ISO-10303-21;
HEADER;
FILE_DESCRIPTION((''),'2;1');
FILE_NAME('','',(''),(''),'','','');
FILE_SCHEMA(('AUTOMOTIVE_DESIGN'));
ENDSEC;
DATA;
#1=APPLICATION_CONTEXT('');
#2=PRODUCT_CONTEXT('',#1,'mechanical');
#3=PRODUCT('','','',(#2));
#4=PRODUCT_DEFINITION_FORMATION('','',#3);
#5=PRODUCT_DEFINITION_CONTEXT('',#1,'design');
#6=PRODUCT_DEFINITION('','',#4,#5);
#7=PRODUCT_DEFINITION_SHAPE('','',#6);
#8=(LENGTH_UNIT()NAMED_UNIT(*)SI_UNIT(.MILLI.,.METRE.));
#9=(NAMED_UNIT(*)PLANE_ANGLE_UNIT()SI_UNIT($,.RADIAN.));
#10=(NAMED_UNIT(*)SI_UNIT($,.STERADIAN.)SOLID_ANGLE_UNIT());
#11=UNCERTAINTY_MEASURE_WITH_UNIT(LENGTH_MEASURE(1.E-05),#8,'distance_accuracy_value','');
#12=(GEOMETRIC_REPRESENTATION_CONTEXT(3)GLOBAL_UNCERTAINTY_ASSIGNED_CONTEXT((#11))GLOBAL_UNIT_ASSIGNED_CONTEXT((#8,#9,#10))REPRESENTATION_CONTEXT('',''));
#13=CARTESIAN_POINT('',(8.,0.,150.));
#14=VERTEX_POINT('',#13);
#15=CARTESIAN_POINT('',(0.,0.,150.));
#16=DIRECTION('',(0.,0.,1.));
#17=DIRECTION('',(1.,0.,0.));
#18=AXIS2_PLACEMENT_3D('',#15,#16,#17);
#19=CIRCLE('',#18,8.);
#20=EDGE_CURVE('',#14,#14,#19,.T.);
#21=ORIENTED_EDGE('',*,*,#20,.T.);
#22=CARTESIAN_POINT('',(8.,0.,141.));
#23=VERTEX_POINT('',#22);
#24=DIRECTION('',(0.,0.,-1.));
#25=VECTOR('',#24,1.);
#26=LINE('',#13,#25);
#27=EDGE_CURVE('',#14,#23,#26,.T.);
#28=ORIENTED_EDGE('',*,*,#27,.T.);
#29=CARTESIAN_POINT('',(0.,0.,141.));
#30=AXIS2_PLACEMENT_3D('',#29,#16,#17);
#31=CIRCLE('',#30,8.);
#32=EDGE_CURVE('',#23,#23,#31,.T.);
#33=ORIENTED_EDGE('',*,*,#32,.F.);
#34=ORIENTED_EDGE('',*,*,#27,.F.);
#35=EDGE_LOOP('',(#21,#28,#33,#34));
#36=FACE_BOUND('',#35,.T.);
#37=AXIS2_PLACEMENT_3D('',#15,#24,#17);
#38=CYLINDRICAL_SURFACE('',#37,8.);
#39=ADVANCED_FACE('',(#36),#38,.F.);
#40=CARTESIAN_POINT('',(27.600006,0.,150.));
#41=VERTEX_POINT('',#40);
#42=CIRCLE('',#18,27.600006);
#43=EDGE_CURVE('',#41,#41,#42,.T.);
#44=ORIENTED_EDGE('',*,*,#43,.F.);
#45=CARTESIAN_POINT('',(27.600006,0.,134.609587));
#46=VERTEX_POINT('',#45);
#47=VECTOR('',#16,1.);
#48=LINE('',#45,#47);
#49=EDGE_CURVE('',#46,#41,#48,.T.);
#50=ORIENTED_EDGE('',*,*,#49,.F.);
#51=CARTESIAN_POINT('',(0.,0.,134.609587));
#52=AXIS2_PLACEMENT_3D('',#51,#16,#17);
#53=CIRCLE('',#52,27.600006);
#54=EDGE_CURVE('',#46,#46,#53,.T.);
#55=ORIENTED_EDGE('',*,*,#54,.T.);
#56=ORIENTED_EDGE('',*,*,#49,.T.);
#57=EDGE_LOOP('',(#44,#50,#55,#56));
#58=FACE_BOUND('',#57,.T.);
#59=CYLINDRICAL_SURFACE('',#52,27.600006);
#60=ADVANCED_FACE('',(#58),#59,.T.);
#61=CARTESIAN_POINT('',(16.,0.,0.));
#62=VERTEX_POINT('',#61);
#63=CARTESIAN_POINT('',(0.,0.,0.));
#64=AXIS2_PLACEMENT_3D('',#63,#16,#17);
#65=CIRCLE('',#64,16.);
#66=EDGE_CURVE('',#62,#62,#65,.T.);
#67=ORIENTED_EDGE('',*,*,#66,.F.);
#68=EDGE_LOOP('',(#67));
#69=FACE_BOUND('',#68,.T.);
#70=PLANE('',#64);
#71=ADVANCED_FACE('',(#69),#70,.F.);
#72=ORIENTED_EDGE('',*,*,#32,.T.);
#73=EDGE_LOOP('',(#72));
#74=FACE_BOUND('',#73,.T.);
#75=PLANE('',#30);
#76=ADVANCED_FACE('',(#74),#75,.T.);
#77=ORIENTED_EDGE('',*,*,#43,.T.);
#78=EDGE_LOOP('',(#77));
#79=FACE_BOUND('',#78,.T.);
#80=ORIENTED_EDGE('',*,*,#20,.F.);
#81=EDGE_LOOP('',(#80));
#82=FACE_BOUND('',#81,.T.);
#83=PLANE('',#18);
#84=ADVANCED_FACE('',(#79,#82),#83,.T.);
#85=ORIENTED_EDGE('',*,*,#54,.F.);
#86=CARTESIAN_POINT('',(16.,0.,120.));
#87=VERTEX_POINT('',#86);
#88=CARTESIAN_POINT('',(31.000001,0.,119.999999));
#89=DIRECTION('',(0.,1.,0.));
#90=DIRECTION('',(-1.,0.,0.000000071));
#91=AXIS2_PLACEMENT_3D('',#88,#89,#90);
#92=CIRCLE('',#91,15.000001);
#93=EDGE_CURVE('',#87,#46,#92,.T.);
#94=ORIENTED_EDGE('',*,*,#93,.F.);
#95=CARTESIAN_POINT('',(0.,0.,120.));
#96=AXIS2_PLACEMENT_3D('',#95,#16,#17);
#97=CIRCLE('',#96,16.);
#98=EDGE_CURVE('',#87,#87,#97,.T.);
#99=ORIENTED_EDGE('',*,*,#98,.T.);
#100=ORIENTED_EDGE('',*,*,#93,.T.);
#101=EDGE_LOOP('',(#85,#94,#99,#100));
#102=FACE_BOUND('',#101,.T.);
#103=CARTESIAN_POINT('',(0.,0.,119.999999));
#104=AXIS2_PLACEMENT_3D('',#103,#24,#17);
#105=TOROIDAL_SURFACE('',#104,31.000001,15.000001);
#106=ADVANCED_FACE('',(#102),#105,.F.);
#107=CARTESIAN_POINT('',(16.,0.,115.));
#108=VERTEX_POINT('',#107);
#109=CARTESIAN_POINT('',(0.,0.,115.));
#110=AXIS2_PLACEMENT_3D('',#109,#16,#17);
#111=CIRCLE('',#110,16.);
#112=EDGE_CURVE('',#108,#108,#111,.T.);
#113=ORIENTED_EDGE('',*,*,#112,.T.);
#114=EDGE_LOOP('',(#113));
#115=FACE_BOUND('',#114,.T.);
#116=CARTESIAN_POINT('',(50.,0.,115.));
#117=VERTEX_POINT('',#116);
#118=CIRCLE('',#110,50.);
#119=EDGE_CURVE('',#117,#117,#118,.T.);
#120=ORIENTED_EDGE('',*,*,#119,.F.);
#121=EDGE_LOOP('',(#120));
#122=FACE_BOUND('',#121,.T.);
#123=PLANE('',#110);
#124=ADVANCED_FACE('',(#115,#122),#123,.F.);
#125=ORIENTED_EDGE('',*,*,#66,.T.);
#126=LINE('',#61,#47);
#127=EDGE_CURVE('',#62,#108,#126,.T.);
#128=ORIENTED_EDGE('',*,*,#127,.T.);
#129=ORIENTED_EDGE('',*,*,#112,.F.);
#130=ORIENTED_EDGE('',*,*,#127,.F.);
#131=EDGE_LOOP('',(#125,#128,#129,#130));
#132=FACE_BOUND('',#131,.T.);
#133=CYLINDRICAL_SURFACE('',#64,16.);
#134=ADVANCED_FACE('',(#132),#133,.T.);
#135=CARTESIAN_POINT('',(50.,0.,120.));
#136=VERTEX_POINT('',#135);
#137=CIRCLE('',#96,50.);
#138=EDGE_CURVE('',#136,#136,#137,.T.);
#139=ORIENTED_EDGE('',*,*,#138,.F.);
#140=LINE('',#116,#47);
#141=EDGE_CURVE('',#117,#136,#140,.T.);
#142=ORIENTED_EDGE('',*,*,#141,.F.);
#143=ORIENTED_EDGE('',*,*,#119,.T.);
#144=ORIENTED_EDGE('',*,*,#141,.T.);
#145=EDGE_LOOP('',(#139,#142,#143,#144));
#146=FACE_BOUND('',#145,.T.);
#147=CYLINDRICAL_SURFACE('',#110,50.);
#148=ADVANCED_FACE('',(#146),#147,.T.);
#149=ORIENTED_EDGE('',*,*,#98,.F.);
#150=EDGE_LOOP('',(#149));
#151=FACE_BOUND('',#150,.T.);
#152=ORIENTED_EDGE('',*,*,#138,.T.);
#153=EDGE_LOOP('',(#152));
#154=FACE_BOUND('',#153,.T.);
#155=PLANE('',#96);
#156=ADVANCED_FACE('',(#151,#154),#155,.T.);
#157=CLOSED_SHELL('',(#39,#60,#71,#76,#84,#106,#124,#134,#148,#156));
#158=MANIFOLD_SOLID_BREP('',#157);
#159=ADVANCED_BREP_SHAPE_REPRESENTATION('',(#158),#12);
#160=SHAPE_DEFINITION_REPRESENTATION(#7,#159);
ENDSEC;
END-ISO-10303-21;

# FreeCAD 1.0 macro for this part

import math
import FreeCAD as App
import Part
import Sketcher
from FreeCAD import Vector

doc = App.newDocument("Part")
body = doc.addObject("PartDesign::Body", "Body")

# Sketch on XZ plane
sketch1 = doc.addObject("Sketcher::SketchObject", "Sketch")
body.addObject(sketch1)
sketch1.AttachmentSupport = (doc.XZ_Plane, [""])
sketch1.MapMode = "FlatFace"
sketch1.addGeometry(Part.LineSegment(Vector(0, 141, 0), Vector(0, 0, 0)), False)
sketch1.addGeometry(Part.LineSegment(Vector(0, 0, 0), Vector(16, 0, 0)), False)
sketch1.addGeometry(Part.LineSegment(Vector(16, 0, 0), Vector(16, 115, 0)), False)
sketch1.addGeometry(Part.LineSegment(Vector(16, 115, 0), Vector(50, 115, 0)), False)
sketch1.addGeometry(Part.LineSegment(Vector(50, 115, 0), Vector(50, 120, 0)), False)
sketch1.addGeometry(Part.LineSegment(Vector(50, 120, 0), Vector(16, 120, 0)), False)
sketch1.addGeometry(Part.ArcOfCircle(Part.Circle(Vector(31.000001, 119.999999, 0), Vector(0, 0, 1), 15.000001), math.radians(103.100883), math.radians(179.999996)), False)
sketch1.addGeometry(Part.LineSegment(Vector(27.600006, 134.609587, 0), Vector(27.600006, 150, 0)), False)
sketch1.addGeometry(Part.LineSegment(Vector(27.600006, 150, 0), Vector(8, 150, 0)), False)
sketch1.addGeometry(Part.LineSegment(Vector(8, 150, 0), Vector(8, 141, 0)), False)
sketch1.addGeometry(Part.LineSegment(Vector(8, 141, 0), Vector(0, 141, 0)), False)
sketch1.addConstraint(Sketcher.Constraint("Coincident", 0, 2, 1, 1))
sketch1.addConstraint(Sketcher.Constraint("Coincident", 1, 2, 2, 1))
sketch1.addConstraint(Sketcher.Constraint("Coincident", 2, 2, 3, 1))
sketch1.addConstraint(Sketcher.Constraint("Coincident", 3, 2, 4, 1))
sketch1.addConstraint(Sketcher.Constraint("Coincident", 4, 2, 5, 1))
sketch1.addConstraint(Sketcher.Constraint("Coincident", 5, 2, 6, 2))
sketch1.addConstraint(Sketcher.Constraint("Coincident", 6, 1, 7, 1))
sketch1.addConstraint(Sketcher.Constraint("Coincident", 7, 2, 8, 1))
sketch1.addConstraint(Sketcher.Constraint("Coincident", 8, 2, 9, 1))
sketch1.addConstraint(Sketcher.Constraint("Coincident", 9, 2, 10, 1))
sketch1.addConstraint(Sketcher.Constraint("Coincident", 10, 2, 0, 1))
sketch1.addConstraint(Sketcher.Constraint("Vertical", 0))
sketch1.addConstraint(Sketcher.Constraint("Horizontal", 1))
sketch1.addConstraint(Sketcher.Constraint("Vertical", 2))
sketch1.addConstraint(Sketcher.Constraint("Horizontal", 3))
sketch1.addConstraint(Sketcher.Constraint("Vertical", 4))
sketch1.addConstraint(Sketcher.Constraint("Horizontal", 5))
sketch1.addConstraint(Sketcher.Constraint("Vertical", 7))
sketch1.addConstraint(Sketcher.Constraint("Horizontal", 8))
sketch1.addConstraint(Sketcher.Constraint("Vertical", 9))
sketch1.addConstraint(Sketcher.Constraint("Horizontal", 10))
sketch1.addConstraint(Sketcher.Constraint("Coincident", 0, 2, -1, 1))
sketch1.addConstraint(Sketcher.Constraint("Horizontal", 6, 3, 4, 2))
sketch1.addConstraint(Sketcher.Constraint("Vertical", 2, 2, 5, 2))
sketch1.addConstraint(Sketcher.Constraint("Radius", 6, 15.000001))
sketch1.addConstraint(Sketcher.Constraint("DistanceX", 1, 1, 1, 2, 16.0))
sketch1.addConstraint(Sketcher.Constraint("DistanceX", 3, 1, 3, 2, 34.0))
sketch1.addConstraint(Sketcher.Constraint("DistanceX", 10, 2, 10, 1, 8.0))
sketch1.addConstraint(Sketcher.Constraint("DistanceY", 0, 2, 0, 1, 141.0))
sketch1.addConstraint(Sketcher.Constraint("DistanceY", 2, 1, 2, 2, 115.0))
sketch1.addConstraint(Sketcher.Constraint("DistanceY", 4, 1, 4, 2, 5.0))
sketch1.addConstraint(Sketcher.Constraint("DistanceY", 9, 2, 9, 1, 9.0))
sketch1.addConstraint(Sketcher.Constraint("DistanceX", 8, 2, 8, 1, 19.600006))
revolution = doc.addObject("PartDesign::Revolution", "Revolution")
body.addObject(revolution)
revolution.Profile = sketch1
revolution.ReferenceAxis = (sketch1, ["V_Axis"])
revolution.Angle = 360

doc.recompute()
